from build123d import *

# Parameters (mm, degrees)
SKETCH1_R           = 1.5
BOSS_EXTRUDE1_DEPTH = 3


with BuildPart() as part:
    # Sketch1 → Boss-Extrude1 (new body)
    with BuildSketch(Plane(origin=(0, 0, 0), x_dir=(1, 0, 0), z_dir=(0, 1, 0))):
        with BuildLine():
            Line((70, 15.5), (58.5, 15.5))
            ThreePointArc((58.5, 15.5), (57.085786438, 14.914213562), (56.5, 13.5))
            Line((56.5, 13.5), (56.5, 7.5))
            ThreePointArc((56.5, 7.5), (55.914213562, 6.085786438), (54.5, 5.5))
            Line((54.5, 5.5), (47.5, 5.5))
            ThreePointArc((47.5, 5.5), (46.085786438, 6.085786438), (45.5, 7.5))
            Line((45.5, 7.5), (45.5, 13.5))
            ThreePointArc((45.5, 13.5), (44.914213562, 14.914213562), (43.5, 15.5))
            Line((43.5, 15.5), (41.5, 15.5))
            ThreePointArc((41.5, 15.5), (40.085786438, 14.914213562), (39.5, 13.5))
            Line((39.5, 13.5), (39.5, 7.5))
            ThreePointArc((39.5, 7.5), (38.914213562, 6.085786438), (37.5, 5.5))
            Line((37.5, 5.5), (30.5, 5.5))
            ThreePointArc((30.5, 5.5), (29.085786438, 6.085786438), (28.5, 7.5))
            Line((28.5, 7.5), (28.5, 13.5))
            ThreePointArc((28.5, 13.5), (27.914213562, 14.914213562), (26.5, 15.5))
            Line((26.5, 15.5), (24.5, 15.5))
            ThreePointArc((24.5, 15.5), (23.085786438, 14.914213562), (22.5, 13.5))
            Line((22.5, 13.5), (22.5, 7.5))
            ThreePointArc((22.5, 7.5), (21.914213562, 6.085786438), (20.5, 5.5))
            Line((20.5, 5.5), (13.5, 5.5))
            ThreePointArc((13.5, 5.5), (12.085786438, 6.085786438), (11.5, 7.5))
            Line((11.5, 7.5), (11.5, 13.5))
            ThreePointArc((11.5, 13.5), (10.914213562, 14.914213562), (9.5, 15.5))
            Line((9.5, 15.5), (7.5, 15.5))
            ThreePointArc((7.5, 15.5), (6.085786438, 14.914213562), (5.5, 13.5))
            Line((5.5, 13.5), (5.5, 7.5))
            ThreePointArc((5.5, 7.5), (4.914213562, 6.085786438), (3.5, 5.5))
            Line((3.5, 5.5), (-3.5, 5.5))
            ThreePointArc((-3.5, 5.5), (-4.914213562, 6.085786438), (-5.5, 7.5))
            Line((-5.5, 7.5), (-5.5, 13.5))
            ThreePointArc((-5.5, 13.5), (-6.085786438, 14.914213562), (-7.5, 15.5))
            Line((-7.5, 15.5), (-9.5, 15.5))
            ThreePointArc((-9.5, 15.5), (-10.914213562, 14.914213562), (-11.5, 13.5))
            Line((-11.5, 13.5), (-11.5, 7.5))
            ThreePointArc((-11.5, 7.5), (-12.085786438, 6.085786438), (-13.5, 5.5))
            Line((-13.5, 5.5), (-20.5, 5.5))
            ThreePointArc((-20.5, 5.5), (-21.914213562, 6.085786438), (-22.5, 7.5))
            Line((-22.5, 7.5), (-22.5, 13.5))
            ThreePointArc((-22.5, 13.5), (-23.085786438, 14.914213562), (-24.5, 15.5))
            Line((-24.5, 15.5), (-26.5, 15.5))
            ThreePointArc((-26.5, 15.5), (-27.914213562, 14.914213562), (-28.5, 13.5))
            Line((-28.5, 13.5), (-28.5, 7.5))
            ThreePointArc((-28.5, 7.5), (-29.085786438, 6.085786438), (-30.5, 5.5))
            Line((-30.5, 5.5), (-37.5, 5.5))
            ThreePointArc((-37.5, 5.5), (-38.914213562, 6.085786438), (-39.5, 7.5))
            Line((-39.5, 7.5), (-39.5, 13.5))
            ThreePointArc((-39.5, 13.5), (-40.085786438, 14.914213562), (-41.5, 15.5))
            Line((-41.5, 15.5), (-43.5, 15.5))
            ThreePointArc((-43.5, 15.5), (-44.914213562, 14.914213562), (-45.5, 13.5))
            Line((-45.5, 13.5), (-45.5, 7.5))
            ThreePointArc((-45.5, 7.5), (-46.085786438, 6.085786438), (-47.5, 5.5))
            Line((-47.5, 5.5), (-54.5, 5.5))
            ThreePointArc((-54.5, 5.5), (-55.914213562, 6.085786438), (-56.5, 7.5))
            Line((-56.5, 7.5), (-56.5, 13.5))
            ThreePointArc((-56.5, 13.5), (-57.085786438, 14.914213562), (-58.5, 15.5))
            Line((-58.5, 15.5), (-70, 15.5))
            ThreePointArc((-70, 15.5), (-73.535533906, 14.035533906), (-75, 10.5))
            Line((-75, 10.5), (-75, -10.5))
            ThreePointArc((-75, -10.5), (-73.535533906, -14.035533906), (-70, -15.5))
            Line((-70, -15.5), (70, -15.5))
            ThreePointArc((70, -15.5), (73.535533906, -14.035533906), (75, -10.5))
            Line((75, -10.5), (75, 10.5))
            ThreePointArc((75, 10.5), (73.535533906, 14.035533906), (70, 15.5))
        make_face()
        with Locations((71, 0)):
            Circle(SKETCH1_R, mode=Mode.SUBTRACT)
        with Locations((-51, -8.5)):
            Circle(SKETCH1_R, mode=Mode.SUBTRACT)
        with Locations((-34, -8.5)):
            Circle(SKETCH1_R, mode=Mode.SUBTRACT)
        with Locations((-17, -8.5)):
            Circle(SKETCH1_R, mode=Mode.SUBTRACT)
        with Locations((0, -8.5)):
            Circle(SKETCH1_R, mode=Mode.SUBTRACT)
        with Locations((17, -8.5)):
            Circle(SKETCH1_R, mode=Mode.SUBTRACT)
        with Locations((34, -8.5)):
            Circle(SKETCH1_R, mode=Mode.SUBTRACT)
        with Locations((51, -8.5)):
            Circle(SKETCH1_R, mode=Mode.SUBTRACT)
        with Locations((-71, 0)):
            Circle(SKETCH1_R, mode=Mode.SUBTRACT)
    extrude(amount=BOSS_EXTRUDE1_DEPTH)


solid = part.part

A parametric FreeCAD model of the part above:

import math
import FreeCAD as App
import Part
import Sketcher
Q = App.Units.Quantity

doc = App.newDocument("Part")
body = doc.addObject("PartDesign::Body", "Body")

# Sketch on XZ plane
sketch1 = body.newObject("Sketcher::SketchObject", "Sketch")
sketch1.AttachmentSupport = (doc.getObject("XZ_Plane"), [""])
sketch1.MapMode = "FlatFace"
sketch1.addGeometry([
    Part.LineSegment(App.Vector(70, -15.5, 0), App.Vector(58.5, -15.5, 0)),  # 0
    Part.ArcOfCircle(Part.Circle(App.Vector(58.5, -13.5, 0), App.Vector(0, 0, 1), 2), math.radians(-180), math.radians(-90)),  # 1
    Part.LineSegment(App.Vector(56.5, -13.5, 0), App.Vector(56.5, -7.5, 0)),  # 2
    Part.ArcOfCircle(Part.Circle(App.Vector(54.5, -7.5, 0), App.Vector(0, 0, 1), 2), math.radians(0), math.radians(90)),  # 3
    Part.LineSegment(App.Vector(54.5, -5.5, 0), App.Vector(47.5, -5.5, 0)),  # 4
    Part.ArcOfCircle(Part.Circle(App.Vector(47.5, -7.5, 0), App.Vector(0, 0, 1), 2), math.radians(90), math.radians(180)),  # 5
    Part.LineSegment(App.Vector(45.5, -7.5, 0), App.Vector(45.5, -13.5, 0)),  # 6
    Part.ArcOfCircle(Part.Circle(App.Vector(43.5, -13.5, 0), App.Vector(0, 0, 1), 2), math.radians(-90), math.radians(0)),  # 7
    Part.LineSegment(App.Vector(43.5, -15.5, 0), App.Vector(41.5, -15.5, 0)),  # 8
    Part.ArcOfCircle(Part.Circle(App.Vector(41.5, -13.5, 0), App.Vector(0, 0, 1), 2), math.radians(-180), math.radians(-90)),  # 9
    Part.LineSegment(App.Vector(39.5, -13.5, 0), App.Vector(39.5, -7.5, 0)),  # 10
    Part.ArcOfCircle(Part.Circle(App.Vector(37.5, -7.5, 0), App.Vector(0, 0, 1), 2), math.radians(0), math.radians(90)),  # 11
    Part.LineSegment(App.Vector(37.5, -5.5, 0), App.Vector(30.5, -5.5, 0)),  # 12
    Part.ArcOfCircle(Part.Circle(App.Vector(30.5, -7.5, 0), App.Vector(0, 0, 1), 2), math.radians(90), math.radians(180)),  # 13
    Part.LineSegment(App.Vector(28.5, -7.5, 0), App.Vector(28.5, -13.5, 0)),  # 14
    Part.ArcOfCircle(Part.Circle(App.Vector(26.5, -13.5, 0), App.Vector(0, 0, 1), 2), math.radians(-90), math.radians(0)),  # 15
    Part.LineSegment(App.Vector(26.5, -15.5, 0), App.Vector(24.5, -15.5, 0)),  # 16
    Part.ArcOfCircle(Part.Circle(App.Vector(24.5, -13.5, 0), App.Vector(0, 0, 1), 2), math.radians(-180), math.radians(-90)),  # 17
    Part.LineSegment(App.Vector(22.5, -13.5, 0), App.Vector(22.5, -7.5, 0)),  # 18
    Part.ArcOfCircle(Part.Circle(App.Vector(20.5, -7.5, 0), App.Vector(0, 0, 1), 2), math.radians(0), math.radians(90)),  # 19
    Part.LineSegment(App.Vector(20.5, -5.5, 0), App.Vector(13.5, -5.5, 0)),  # 20
    Part.ArcOfCircle(Part.Circle(App.Vector(13.5, -7.5, 0), App.Vector(0, 0, 1), 2), math.radians(90), math.radians(180)),  # 21
    Part.LineSegment(App.Vector(11.5, -7.5, 0), App.Vector(11.5, -13.5, 0)),  # 22
    Part.ArcOfCircle(Part.Circle(App.Vector(9.5, -13.5, 0), App.Vector(0, 0, 1), 2), math.radians(-90), math.radians(0)),  # 23
    Part.LineSegment(App.Vector(9.5, -15.5, 0), App.Vector(7.5, -15.5, 0)),  # 24
    Part.ArcOfCircle(Part.Circle(App.Vector(7.5, -13.5, 0), App.Vector(0, 0, 1), 2), math.radians(-180), math.radians(-90)),  # 25
    Part.LineSegment(App.Vector(5.5, -13.5, 0), App.Vector(5.5, -7.5, 0)),  # 26
    Part.ArcOfCircle(Part.Circle(App.Vector(3.5, -7.5, 0), App.Vector(0, 0, 1), 2), math.radians(0), math.radians(90)),  # 27
    Part.LineSegment(App.Vector(3.5, -5.5, 0), App.Vector(-3.5, -5.5, 0)),  # 28
    Part.ArcOfCircle(Part.Circle(App.Vector(-3.5, -7.5, 0), App.Vector(0, 0, 1), 2), math.radians(90), math.radians(180)),  # 29
    Part.LineSegment(App.Vector(-5.5, -7.5, 0), App.Vector(-5.5, -13.5, 0)),  # 30
    Part.ArcOfCircle(Part.Circle(App.Vector(-7.5, -13.5, 0), App.Vector(0, 0, 1), 2), math.radians(-90), math.radians(0)),  # 31
    Part.LineSegment(App.Vector(-7.5, -15.5, 0), App.Vector(-9.5, -15.5, 0)),  # 32
    Part.ArcOfCircle(Part.Circle(App.Vector(-9.5, -13.5, 0), App.Vector(0, 0, 1), 2), math.radians(-180), math.radians(-90)),  # 33
    Part.LineSegment(App.Vector(-11.5, -13.5, 0), App.Vector(-11.5, -7.5, 0)),  # 34
    Part.ArcOfCircle(Part.Circle(App.Vector(-13.5, -7.5, 0), App.Vector(0, 0, 1), 2), math.radians(0), math.radians(90)),  # 35
    Part.LineSegment(App.Vector(-13.5, -5.5, 0), App.Vector(-20.5, -5.5, 0)),  # 36
    Part.ArcOfCircle(Part.Circle(App.Vector(-20.5, -7.5, 0), App.Vector(0, 0, 1), 2), math.radians(90), math.radians(180)),  # 37
    Part.LineSegment(App.Vector(-22.5, -7.5, 0), App.Vector(-22.5, -13.5, 0)),  # 38
    Part.ArcOfCircle(Part.Circle(App.Vector(-24.5, -13.5, 0), App.Vector(0, 0, 1), 2), math.radians(-90), math.radians(0)),  # 39
    Part.LineSegment(App.Vector(-24.5, -15.5, 0), App.Vector(-26.5, -15.5, 0)),  # 40
    Part.ArcOfCircle(Part.Circle(App.Vector(-26.5, -13.5, 0), App.Vector(0, 0, 1), 2), math.radians(-180), math.radians(-90)),  # 41
    Part.LineSegment(App.Vector(-28.5, -13.5, 0), App.Vector(-28.5, -7.5, 0)),  # 42
    Part.ArcOfCircle(Part.Circle(App.Vector(-30.5, -7.5, 0), App.Vector(0, 0, 1), 2), math.radians(0), math.radians(90)),  # 43
    Part.LineSegment(App.Vector(-30.5, -5.5, 0), App.Vector(-37.5, -5.5, 0)),  # 44
    Part.ArcOfCircle(Part.Circle(App.Vector(-37.5, -7.5, 0), App.Vector(0, 0, 1), 2), math.radians(90), math.radians(180)),  # 45
    Part.LineSegment(App.Vector(-39.5, -7.5, 0), App.Vector(-39.5, -13.5, 0)),  # 46
    Part.ArcOfCircle(Part.Circle(App.Vector(-41.5, -13.5, 0), App.Vector(0, 0, 1), 2), math.radians(-90), math.radians(0)),  # 47
    Part.LineSegment(App.Vector(-41.5, -15.5, 0), App.Vector(-43.5, -15.5, 0)),  # 48
    Part.ArcOfCircle(Part.Circle(App.Vector(-43.5, -13.5, 0), App.Vector(0, 0, 1), 2), math.radians(-180), math.radians(-90)),  # 49
    Part.LineSegment(App.Vector(-45.5, -13.5, 0), App.Vector(-45.5, -7.5, 0)),  # 50
    Part.ArcOfCircle(Part.Circle(App.Vector(-47.5, -7.5, 0), App.Vector(0, 0, 1), 2), math.radians(0), math.radians(90)),  # 51
    Part.LineSegment(App.Vector(-47.5, -5.5, 0), App.Vector(-54.5, -5.5, 0)),  # 52
    Part.ArcOfCircle(Part.Circle(App.Vector(-54.5, -7.5, 0), App.Vector(0, 0, 1), 2), math.radians(90), math.radians(180)),  # 53
    Part.LineSegment(App.Vector(-56.5, -7.5, 0), App.Vector(-56.5, -13.5, 0)),  # 54
    Part.ArcOfCircle(Part.Circle(App.Vector(-58.5, -13.5, 0), App.Vector(0, 0, 1), 2), math.radians(-90), math.radians(0)),  # 55
    Part.LineSegment(App.Vector(-58.5, -15.5, 0), App.Vector(-70, -15.5, 0)),  # 56
    Part.ArcOfCircle(Part.Circle(App.Vector(-70, -10.5, 0), App.Vector(0, 0, 1), 5), math.radians(180), math.radians(270)),  # 57
    Part.LineSegment(App.Vector(-75, -10.5, 0), App.Vector(-75, 10.5, 0)),  # 58
    Part.ArcOfCircle(Part.Circle(App.Vector(-70, 10.5, 0), App.Vector(0, 0, 1), 5), math.radians(90), math.radians(180)),  # 59
    Part.LineSegment(App.Vector(-70, 15.5, 0), App.Vector(70, 15.5, 0)),  # 60
    Part.ArcOfCircle(Part.Circle(App.Vector(70, 10.5, 0), App.Vector(0, 0, 1), 5), math.radians(0), math.radians(90)),  # 61
    Part.LineSegment(App.Vector(75, 10.5, 0), App.Vector(75, -10.5, 0)),  # 62
    Part.ArcOfCircle(Part.Circle(App.Vector(70, -10.5, 0), App.Vector(0, 0, 1), 5), math.radians(-90), math.radians(0)),  # 63
    Part.Circle(App.Vector(-51, 8.5, 0), App.Vector(0, 0, 1), 1.5),  # 64
    Part.Circle(App.Vector(-34, 8.5, 0), App.Vector(0, 0, 1), 1.5),  # 65
    Part.Circle(App.Vector(-17, 8.5, 0), App.Vector(0, 0, 1), 1.5),  # 66
    Part.Circle(App.Vector(0, 8.5, 0), App.Vector(0, 0, 1), 1.5),  # 67
    Part.Circle(App.Vector(17, 8.5, 0), App.Vector(0, 0, 1), 1.5),  # 68
    Part.Circle(App.Vector(34, 8.5, 0), App.Vector(0, 0, 1), 1.5),  # 69
    Part.Circle(App.Vector(51, 8.5, 0), App.Vector(0, 0, 1), 1.5),  # 70
    Part.Circle(App.Vector(-71, 0, 0), App.Vector(0, 0, 1), 1.5),  # 71
    Part.Circle(App.Vector(71, 0, 0), App.Vector(0, 0, 1), 1.5),  # 72
], False)
sketch1.addConstraint([
    Sketcher.Constraint("Tangent", 0, 2, 1, 2),
    Sketcher.Constraint("Tangent", 1, 1, 2, 1),
    Sketcher.Constraint("Tangent", 2, 2, 3, 1),
    Sketcher.Constraint("Tangent", 3, 2, 4, 1),
    Sketcher.Constraint("Tangent", 4, 2, 5, 1),
    Sketcher.Constraint("Tangent", 5, 2, 6, 1),
    Sketcher.Constraint("Tangent", 6, 2, 7, 2),
    Sketcher.Constraint("Tangent", 7, 1, 8, 1),
    Sketcher.Constraint("Tangent", 8, 2, 9, 2),
    Sketcher.Constraint("Tangent", 9, 1, 10, 1),
    Sketcher.Constraint("Tangent", 10, 2, 11, 1),
    Sketcher.Constraint("Tangent", 11, 2, 12, 1),
    Sketcher.Constraint("Tangent", 12, 2, 13, 1),
    Sketcher.Constraint("Tangent", 13, 2, 14, 1),
    Sketcher.Constraint("Tangent", 14, 2, 15, 2),
    Sketcher.Constraint("Tangent", 15, 1, 16, 1),
    Sketcher.Constraint("Tangent", 16, 2, 17, 2),
    Sketcher.Constraint("Tangent", 17, 1, 18, 1),
    Sketcher.Constraint("Tangent", 18, 2, 19, 1),
    Sketcher.Constraint("Tangent", 19, 2, 20, 1),
    Sketcher.Constraint("Tangent", 20, 2, 21, 1),
    Sketcher.Constraint("Tangent", 21, 2, 22, 1),
    Sketcher.Constraint("Tangent", 22, 2, 23, 2),
    Sketcher.Constraint("Tangent", 23, 1, 24, 1),
    Sketcher.Constraint("Tangent", 24, 2, 25, 2),
    Sketcher.Constraint("Tangent", 25, 1, 26, 1),
    Sketcher.Constraint("Tangent", 26, 2, 27, 1),
    Sketcher.Constraint("Tangent", 27, 2, 28, 1),
    Sketcher.Constraint("Tangent", 28, 2, 29, 1),
    Sketcher.Constraint("Tangent", 29, 2, 30, 1),
    Sketcher.Constraint("Tangent", 30, 2, 31, 2),
    Sketcher.Constraint("Tangent", 31, 1, 32, 1),
    Sketcher.Constraint("Tangent", 32, 2, 33, 2),
    Sketcher.Constraint("Tangent", 33, 1, 34, 1),
    Sketcher.Constraint("Tangent", 34, 2, 35, 1),
    Sketcher.Constraint("Tangent", 35, 2, 36, 1),
    Sketcher.Constraint("Tangent", 36, 2, 37, 1),
    Sketcher.Constraint("Tangent", 37, 2, 38, 1),
    Sketcher.Constraint("Tangent", 38, 2, 39, 2),
    Sketcher.Constraint("Tangent", 39, 1, 40, 1),
    Sketcher.Constraint("Tangent", 40, 2, 41, 2),
    Sketcher.Constraint("Tangent", 41, 1, 42, 1),
    Sketcher.Constraint("Tangent", 42, 2, 43, 1),
    Sketcher.Constraint("Tangent", 43, 2, 44, 1),
    Sketcher.Constraint("Tangent", 44, 2, 45, 1),
    Sketcher.Constraint("Tangent", 45, 2, 46, 1),
    Sketcher.Constraint("Tangent", 46, 2, 47, 2),
    Sketcher.Constraint("Tangent", 47, 1, 48, 1),
    Sketcher.Constraint("Tangent", 48, 2, 49, 2),
    Sketcher.Constraint("Tangent", 49, 1, 50, 1),
    Sketcher.Constraint("Tangent", 50, 2, 51, 1),
    Sketcher.Constraint("Tangent", 51, 2, 52, 1),
    Sketcher.Constraint("Tangent", 52, 2, 53, 1),
    Sketcher.Constraint("Tangent", 53, 2, 54, 1),
    Sketcher.Constraint("Tangent", 54, 2, 55, 2),
    Sketcher.Constraint("Tangent", 55, 1, 56, 1),
    Sketcher.Constraint("Tangent", 56, 2, 57, 2),
    Sketcher.Constraint("Tangent", 57, 1, 58, 1),
    Sketcher.Constraint("Tangent", 58, 2, 59, 2),
    Sketcher.Constraint("Tangent", 59, 1, 60, 1),
    Sketcher.Constraint("Tangent", 60, 2, 61, 2),
    Sketcher.Constraint("Tangent", 61, 1, 62, 1),
    Sketcher.Constraint("Tangent", 62, 2, 63, 2),
    Sketcher.Constraint("Tangent", 63, 1, 0, 1),
    Sketcher.Constraint("Horizontal", 0),
    Sketcher.Constraint("Vertical", 2),
    Sketcher.Constraint("Horizontal", 4),
    Sketcher.Constraint("Vertical", 6),
    Sketcher.Constraint("Horizontal", 8),
    Sketcher.Constraint("Vertical", 10),
    Sketcher.Constraint("Horizontal", 12),
    Sketcher.Constraint("Vertical", 14),
    Sketcher.Constraint("Horizontal", 16),
    Sketcher.Constraint("Vertical", 18),
    Sketcher.Constraint("Horizontal", 20),
    Sketcher.Constraint("Vertical", 22),
    Sketcher.Constraint("Horizontal", 24),
    Sketcher.Constraint("Vertical", 26),
    Sketcher.Constraint("Horizontal", 28),
    Sketcher.Constraint("Vertical", 30),
    Sketcher.Constraint("Horizontal", 32),
    Sketcher.Constraint("Vertical", 34),
    Sketcher.Constraint("Horizontal", 36),
    Sketcher.Constraint("Vertical", 38),
    Sketcher.Constraint("Horizontal", 40),
    Sketcher.Constraint("Vertical", 42),
    Sketcher.Constraint("Horizontal", 44),
    Sketcher.Constraint("Vertical", 46),
    Sketcher.Constraint("Horizontal", 48),
    Sketcher.Constraint("Vertical", 50),
    Sketcher.Constraint("Horizontal", 52),
    Sketcher.Constraint("Vertical", 54),
    Sketcher.Constraint("Horizontal", 56),
    Sketcher.Constraint("Vertical", 58),
    Sketcher.Constraint("Horizontal", 60),
    Sketcher.Constraint("Vertical", 62),
    Sketcher.Constraint("Equal", 1, 3),
    Sketcher.Constraint("Equal", 3, 5),
    Sketcher.Constraint("Equal", 5, 7),
    Sketcher.Constraint("Equal", 7, 9),
    Sketcher.Constraint("Equal", 9, 11),
    Sketcher.Constraint("Equal", 11, 13),
    Sketcher.Constraint("Equal", 13, 15),
    Sketcher.Constraint("Equal", 15, 17),
    Sketcher.Constraint("Equal", 17, 19),
    Sketcher.Constraint("Equal", 19, 21),
    Sketcher.Constraint("Equal", 21, 23),
    Sketcher.Constraint("Equal", 23, 25),
    Sketcher.Constraint("Equal", 25, 27),
    Sketcher.Constraint("Equal", 27, 29),
    Sketcher.Constraint("Equal", 29, 31),
    Sketcher.Constraint("Equal", 31, 33),
    Sketcher.Constraint("Equal", 33, 35),
    Sketcher.Constraint("Equal", 35, 37),
    Sketcher.Constraint("Equal", 37, 39),
    Sketcher.Constraint("Equal", 39, 41),
    Sketcher.Constraint("Equal", 41, 43),
    Sketcher.Constraint("Equal", 43, 45),
    Sketcher.Constraint("Equal", 45, 47),
    Sketcher.Constraint("Equal", 47, 49),
    Sketcher.Constraint("Equal", 49, 51),
    Sketcher.Constraint("Equal", 51, 53),
    Sketcher.Constraint("Equal", 53, 55),
    Sketcher.Constraint("Equal", 57, 59),
    Sketcher.Constraint("Equal", 59, 61),
    Sketcher.Constraint("Equal", 61, 63),
    Sketcher.Constraint("Equal", 64, 65),
    Sketcher.Constraint("Equal", 65, 66),
    Sketcher.Constraint("Equal", 66, 67),
    Sketcher.Constraint("Equal", 67, 68),
    Sketcher.Constraint("Equal", 68, 69),
    Sketcher.Constraint("Equal", 69, 70),
    Sketcher.Constraint("Equal", 70, 71),
    Sketcher.Constraint("Equal", 71, 72),
    Sketcher.Constraint("Symmetric", 57, 3, 61, 3, -1, 1),
    Sketcher.Constraint("Symmetric", 71, 3, 72, 3, -1, 1),
    Sketcher.Constraint("Symmetric", 25, 3, 31, 3, -2),
    Sketcher.Constraint("Symmetric", 21, 3, 35, 3, -2),
    Sketcher.Constraint("Symmetric", 17, 3, 39, 3, -2),
    Sketcher.Constraint("Symmetric", 13, 3, 43, 3, -2),
    Sketcher.Constraint("Symmetric", 9, 3, 47, 3, -2),
    Sketcher.Constraint("Symmetric", 5, 3, 51, 3, -2),
    Sketcher.Constraint("Symmetric", 1, 3, 55, 3, -2),
    Sketcher.Constraint("Symmetric", 66, 3, 68, 3, -2),
    Sketcher.Constraint("Symmetric", 65, 3, 69, 3, -2),
    Sketcher.Constraint("Symmetric", 64, 3, 70, 3, -2),
    Sketcher.Constraint("PointOnObject", 67, 3, -2),
    Sketcher.Constraint("PointOnObject", 71, 3, -1),
    Sketcher.Constraint("Horizontal", 1, 3, 7, 3),
    Sketcher.Constraint("Horizontal", 5, 3, 11, 3),
    Sketcher.Constraint("Horizontal", 9, 3, 15, 3),
    Sketcher.Constraint("Horizontal", 13, 3, 19, 3),
    Sketcher.Constraint("Horizontal", 17, 3, 23, 3),
    Sketcher.Constraint("Horizontal", 21, 3, 27, 3),
    Sketcher.Constraint("Horizontal", 64, 3, 65, 3),
    Sketcher.Constraint("Horizontal", 65, 3, 66, 3),
    Sketcher.Constraint("Horizontal", 66, 3, 67, 3),
    Sketcher.Constraint("Equal", 4, 12),
    Sketcher.Constraint("Equal", 8, 16),
    Sketcher.Constraint("Equal", 12, 20),
    Sketcher.Constraint("Equal", 16, 24),
    Sketcher.Constraint("Equal", 20, 28),
    Sketcher.Constraint("Diameter", 64, Q("3 mm")),
    Sketcher.Constraint("Radius", 1, Q("2 mm")),
    Sketcher.Constraint("Radius", 57, Q("5 mm")),
    Sketcher.Constraint("DistanceX", 4, 2, 4, 1, Q("7 mm")),
    Sketcher.Constraint("DistanceX", 8, 2, 8, 1, Q("2 mm")),
    Sketcher.Constraint("DistanceX", 60, 1, 60, 2, Q("140 mm")),
    Sketcher.Constraint("DistanceY", 2, 1, 2, 2, Q("6 mm")),
    Sketcher.Constraint("DistanceY", 58, 1, 58, 2, Q("21 mm")),
    Sketcher.Constraint("DistanceX", 64, 3, -1, 1, Q("51 mm")),
    Sketcher.Constraint("DistanceX", 65, 3, -1, 1, Q("34 mm")),
    Sketcher.Constraint("DistanceX", 66, 3, -1, 1, Q("17 mm")),
    Sketcher.Constraint("DistanceX", 71, 3, -1, 1, Q("71 mm")),
    Sketcher.Constraint("DistanceY", -1, 1, 64, 3, Q("8.5 mm")),
])
pad1 = body.newObject("PartDesign::Pad", "Pad")
pad1.Profile = sketch1
pad1.Length = 3
pad1.Reversed = True

doc.recompute()
